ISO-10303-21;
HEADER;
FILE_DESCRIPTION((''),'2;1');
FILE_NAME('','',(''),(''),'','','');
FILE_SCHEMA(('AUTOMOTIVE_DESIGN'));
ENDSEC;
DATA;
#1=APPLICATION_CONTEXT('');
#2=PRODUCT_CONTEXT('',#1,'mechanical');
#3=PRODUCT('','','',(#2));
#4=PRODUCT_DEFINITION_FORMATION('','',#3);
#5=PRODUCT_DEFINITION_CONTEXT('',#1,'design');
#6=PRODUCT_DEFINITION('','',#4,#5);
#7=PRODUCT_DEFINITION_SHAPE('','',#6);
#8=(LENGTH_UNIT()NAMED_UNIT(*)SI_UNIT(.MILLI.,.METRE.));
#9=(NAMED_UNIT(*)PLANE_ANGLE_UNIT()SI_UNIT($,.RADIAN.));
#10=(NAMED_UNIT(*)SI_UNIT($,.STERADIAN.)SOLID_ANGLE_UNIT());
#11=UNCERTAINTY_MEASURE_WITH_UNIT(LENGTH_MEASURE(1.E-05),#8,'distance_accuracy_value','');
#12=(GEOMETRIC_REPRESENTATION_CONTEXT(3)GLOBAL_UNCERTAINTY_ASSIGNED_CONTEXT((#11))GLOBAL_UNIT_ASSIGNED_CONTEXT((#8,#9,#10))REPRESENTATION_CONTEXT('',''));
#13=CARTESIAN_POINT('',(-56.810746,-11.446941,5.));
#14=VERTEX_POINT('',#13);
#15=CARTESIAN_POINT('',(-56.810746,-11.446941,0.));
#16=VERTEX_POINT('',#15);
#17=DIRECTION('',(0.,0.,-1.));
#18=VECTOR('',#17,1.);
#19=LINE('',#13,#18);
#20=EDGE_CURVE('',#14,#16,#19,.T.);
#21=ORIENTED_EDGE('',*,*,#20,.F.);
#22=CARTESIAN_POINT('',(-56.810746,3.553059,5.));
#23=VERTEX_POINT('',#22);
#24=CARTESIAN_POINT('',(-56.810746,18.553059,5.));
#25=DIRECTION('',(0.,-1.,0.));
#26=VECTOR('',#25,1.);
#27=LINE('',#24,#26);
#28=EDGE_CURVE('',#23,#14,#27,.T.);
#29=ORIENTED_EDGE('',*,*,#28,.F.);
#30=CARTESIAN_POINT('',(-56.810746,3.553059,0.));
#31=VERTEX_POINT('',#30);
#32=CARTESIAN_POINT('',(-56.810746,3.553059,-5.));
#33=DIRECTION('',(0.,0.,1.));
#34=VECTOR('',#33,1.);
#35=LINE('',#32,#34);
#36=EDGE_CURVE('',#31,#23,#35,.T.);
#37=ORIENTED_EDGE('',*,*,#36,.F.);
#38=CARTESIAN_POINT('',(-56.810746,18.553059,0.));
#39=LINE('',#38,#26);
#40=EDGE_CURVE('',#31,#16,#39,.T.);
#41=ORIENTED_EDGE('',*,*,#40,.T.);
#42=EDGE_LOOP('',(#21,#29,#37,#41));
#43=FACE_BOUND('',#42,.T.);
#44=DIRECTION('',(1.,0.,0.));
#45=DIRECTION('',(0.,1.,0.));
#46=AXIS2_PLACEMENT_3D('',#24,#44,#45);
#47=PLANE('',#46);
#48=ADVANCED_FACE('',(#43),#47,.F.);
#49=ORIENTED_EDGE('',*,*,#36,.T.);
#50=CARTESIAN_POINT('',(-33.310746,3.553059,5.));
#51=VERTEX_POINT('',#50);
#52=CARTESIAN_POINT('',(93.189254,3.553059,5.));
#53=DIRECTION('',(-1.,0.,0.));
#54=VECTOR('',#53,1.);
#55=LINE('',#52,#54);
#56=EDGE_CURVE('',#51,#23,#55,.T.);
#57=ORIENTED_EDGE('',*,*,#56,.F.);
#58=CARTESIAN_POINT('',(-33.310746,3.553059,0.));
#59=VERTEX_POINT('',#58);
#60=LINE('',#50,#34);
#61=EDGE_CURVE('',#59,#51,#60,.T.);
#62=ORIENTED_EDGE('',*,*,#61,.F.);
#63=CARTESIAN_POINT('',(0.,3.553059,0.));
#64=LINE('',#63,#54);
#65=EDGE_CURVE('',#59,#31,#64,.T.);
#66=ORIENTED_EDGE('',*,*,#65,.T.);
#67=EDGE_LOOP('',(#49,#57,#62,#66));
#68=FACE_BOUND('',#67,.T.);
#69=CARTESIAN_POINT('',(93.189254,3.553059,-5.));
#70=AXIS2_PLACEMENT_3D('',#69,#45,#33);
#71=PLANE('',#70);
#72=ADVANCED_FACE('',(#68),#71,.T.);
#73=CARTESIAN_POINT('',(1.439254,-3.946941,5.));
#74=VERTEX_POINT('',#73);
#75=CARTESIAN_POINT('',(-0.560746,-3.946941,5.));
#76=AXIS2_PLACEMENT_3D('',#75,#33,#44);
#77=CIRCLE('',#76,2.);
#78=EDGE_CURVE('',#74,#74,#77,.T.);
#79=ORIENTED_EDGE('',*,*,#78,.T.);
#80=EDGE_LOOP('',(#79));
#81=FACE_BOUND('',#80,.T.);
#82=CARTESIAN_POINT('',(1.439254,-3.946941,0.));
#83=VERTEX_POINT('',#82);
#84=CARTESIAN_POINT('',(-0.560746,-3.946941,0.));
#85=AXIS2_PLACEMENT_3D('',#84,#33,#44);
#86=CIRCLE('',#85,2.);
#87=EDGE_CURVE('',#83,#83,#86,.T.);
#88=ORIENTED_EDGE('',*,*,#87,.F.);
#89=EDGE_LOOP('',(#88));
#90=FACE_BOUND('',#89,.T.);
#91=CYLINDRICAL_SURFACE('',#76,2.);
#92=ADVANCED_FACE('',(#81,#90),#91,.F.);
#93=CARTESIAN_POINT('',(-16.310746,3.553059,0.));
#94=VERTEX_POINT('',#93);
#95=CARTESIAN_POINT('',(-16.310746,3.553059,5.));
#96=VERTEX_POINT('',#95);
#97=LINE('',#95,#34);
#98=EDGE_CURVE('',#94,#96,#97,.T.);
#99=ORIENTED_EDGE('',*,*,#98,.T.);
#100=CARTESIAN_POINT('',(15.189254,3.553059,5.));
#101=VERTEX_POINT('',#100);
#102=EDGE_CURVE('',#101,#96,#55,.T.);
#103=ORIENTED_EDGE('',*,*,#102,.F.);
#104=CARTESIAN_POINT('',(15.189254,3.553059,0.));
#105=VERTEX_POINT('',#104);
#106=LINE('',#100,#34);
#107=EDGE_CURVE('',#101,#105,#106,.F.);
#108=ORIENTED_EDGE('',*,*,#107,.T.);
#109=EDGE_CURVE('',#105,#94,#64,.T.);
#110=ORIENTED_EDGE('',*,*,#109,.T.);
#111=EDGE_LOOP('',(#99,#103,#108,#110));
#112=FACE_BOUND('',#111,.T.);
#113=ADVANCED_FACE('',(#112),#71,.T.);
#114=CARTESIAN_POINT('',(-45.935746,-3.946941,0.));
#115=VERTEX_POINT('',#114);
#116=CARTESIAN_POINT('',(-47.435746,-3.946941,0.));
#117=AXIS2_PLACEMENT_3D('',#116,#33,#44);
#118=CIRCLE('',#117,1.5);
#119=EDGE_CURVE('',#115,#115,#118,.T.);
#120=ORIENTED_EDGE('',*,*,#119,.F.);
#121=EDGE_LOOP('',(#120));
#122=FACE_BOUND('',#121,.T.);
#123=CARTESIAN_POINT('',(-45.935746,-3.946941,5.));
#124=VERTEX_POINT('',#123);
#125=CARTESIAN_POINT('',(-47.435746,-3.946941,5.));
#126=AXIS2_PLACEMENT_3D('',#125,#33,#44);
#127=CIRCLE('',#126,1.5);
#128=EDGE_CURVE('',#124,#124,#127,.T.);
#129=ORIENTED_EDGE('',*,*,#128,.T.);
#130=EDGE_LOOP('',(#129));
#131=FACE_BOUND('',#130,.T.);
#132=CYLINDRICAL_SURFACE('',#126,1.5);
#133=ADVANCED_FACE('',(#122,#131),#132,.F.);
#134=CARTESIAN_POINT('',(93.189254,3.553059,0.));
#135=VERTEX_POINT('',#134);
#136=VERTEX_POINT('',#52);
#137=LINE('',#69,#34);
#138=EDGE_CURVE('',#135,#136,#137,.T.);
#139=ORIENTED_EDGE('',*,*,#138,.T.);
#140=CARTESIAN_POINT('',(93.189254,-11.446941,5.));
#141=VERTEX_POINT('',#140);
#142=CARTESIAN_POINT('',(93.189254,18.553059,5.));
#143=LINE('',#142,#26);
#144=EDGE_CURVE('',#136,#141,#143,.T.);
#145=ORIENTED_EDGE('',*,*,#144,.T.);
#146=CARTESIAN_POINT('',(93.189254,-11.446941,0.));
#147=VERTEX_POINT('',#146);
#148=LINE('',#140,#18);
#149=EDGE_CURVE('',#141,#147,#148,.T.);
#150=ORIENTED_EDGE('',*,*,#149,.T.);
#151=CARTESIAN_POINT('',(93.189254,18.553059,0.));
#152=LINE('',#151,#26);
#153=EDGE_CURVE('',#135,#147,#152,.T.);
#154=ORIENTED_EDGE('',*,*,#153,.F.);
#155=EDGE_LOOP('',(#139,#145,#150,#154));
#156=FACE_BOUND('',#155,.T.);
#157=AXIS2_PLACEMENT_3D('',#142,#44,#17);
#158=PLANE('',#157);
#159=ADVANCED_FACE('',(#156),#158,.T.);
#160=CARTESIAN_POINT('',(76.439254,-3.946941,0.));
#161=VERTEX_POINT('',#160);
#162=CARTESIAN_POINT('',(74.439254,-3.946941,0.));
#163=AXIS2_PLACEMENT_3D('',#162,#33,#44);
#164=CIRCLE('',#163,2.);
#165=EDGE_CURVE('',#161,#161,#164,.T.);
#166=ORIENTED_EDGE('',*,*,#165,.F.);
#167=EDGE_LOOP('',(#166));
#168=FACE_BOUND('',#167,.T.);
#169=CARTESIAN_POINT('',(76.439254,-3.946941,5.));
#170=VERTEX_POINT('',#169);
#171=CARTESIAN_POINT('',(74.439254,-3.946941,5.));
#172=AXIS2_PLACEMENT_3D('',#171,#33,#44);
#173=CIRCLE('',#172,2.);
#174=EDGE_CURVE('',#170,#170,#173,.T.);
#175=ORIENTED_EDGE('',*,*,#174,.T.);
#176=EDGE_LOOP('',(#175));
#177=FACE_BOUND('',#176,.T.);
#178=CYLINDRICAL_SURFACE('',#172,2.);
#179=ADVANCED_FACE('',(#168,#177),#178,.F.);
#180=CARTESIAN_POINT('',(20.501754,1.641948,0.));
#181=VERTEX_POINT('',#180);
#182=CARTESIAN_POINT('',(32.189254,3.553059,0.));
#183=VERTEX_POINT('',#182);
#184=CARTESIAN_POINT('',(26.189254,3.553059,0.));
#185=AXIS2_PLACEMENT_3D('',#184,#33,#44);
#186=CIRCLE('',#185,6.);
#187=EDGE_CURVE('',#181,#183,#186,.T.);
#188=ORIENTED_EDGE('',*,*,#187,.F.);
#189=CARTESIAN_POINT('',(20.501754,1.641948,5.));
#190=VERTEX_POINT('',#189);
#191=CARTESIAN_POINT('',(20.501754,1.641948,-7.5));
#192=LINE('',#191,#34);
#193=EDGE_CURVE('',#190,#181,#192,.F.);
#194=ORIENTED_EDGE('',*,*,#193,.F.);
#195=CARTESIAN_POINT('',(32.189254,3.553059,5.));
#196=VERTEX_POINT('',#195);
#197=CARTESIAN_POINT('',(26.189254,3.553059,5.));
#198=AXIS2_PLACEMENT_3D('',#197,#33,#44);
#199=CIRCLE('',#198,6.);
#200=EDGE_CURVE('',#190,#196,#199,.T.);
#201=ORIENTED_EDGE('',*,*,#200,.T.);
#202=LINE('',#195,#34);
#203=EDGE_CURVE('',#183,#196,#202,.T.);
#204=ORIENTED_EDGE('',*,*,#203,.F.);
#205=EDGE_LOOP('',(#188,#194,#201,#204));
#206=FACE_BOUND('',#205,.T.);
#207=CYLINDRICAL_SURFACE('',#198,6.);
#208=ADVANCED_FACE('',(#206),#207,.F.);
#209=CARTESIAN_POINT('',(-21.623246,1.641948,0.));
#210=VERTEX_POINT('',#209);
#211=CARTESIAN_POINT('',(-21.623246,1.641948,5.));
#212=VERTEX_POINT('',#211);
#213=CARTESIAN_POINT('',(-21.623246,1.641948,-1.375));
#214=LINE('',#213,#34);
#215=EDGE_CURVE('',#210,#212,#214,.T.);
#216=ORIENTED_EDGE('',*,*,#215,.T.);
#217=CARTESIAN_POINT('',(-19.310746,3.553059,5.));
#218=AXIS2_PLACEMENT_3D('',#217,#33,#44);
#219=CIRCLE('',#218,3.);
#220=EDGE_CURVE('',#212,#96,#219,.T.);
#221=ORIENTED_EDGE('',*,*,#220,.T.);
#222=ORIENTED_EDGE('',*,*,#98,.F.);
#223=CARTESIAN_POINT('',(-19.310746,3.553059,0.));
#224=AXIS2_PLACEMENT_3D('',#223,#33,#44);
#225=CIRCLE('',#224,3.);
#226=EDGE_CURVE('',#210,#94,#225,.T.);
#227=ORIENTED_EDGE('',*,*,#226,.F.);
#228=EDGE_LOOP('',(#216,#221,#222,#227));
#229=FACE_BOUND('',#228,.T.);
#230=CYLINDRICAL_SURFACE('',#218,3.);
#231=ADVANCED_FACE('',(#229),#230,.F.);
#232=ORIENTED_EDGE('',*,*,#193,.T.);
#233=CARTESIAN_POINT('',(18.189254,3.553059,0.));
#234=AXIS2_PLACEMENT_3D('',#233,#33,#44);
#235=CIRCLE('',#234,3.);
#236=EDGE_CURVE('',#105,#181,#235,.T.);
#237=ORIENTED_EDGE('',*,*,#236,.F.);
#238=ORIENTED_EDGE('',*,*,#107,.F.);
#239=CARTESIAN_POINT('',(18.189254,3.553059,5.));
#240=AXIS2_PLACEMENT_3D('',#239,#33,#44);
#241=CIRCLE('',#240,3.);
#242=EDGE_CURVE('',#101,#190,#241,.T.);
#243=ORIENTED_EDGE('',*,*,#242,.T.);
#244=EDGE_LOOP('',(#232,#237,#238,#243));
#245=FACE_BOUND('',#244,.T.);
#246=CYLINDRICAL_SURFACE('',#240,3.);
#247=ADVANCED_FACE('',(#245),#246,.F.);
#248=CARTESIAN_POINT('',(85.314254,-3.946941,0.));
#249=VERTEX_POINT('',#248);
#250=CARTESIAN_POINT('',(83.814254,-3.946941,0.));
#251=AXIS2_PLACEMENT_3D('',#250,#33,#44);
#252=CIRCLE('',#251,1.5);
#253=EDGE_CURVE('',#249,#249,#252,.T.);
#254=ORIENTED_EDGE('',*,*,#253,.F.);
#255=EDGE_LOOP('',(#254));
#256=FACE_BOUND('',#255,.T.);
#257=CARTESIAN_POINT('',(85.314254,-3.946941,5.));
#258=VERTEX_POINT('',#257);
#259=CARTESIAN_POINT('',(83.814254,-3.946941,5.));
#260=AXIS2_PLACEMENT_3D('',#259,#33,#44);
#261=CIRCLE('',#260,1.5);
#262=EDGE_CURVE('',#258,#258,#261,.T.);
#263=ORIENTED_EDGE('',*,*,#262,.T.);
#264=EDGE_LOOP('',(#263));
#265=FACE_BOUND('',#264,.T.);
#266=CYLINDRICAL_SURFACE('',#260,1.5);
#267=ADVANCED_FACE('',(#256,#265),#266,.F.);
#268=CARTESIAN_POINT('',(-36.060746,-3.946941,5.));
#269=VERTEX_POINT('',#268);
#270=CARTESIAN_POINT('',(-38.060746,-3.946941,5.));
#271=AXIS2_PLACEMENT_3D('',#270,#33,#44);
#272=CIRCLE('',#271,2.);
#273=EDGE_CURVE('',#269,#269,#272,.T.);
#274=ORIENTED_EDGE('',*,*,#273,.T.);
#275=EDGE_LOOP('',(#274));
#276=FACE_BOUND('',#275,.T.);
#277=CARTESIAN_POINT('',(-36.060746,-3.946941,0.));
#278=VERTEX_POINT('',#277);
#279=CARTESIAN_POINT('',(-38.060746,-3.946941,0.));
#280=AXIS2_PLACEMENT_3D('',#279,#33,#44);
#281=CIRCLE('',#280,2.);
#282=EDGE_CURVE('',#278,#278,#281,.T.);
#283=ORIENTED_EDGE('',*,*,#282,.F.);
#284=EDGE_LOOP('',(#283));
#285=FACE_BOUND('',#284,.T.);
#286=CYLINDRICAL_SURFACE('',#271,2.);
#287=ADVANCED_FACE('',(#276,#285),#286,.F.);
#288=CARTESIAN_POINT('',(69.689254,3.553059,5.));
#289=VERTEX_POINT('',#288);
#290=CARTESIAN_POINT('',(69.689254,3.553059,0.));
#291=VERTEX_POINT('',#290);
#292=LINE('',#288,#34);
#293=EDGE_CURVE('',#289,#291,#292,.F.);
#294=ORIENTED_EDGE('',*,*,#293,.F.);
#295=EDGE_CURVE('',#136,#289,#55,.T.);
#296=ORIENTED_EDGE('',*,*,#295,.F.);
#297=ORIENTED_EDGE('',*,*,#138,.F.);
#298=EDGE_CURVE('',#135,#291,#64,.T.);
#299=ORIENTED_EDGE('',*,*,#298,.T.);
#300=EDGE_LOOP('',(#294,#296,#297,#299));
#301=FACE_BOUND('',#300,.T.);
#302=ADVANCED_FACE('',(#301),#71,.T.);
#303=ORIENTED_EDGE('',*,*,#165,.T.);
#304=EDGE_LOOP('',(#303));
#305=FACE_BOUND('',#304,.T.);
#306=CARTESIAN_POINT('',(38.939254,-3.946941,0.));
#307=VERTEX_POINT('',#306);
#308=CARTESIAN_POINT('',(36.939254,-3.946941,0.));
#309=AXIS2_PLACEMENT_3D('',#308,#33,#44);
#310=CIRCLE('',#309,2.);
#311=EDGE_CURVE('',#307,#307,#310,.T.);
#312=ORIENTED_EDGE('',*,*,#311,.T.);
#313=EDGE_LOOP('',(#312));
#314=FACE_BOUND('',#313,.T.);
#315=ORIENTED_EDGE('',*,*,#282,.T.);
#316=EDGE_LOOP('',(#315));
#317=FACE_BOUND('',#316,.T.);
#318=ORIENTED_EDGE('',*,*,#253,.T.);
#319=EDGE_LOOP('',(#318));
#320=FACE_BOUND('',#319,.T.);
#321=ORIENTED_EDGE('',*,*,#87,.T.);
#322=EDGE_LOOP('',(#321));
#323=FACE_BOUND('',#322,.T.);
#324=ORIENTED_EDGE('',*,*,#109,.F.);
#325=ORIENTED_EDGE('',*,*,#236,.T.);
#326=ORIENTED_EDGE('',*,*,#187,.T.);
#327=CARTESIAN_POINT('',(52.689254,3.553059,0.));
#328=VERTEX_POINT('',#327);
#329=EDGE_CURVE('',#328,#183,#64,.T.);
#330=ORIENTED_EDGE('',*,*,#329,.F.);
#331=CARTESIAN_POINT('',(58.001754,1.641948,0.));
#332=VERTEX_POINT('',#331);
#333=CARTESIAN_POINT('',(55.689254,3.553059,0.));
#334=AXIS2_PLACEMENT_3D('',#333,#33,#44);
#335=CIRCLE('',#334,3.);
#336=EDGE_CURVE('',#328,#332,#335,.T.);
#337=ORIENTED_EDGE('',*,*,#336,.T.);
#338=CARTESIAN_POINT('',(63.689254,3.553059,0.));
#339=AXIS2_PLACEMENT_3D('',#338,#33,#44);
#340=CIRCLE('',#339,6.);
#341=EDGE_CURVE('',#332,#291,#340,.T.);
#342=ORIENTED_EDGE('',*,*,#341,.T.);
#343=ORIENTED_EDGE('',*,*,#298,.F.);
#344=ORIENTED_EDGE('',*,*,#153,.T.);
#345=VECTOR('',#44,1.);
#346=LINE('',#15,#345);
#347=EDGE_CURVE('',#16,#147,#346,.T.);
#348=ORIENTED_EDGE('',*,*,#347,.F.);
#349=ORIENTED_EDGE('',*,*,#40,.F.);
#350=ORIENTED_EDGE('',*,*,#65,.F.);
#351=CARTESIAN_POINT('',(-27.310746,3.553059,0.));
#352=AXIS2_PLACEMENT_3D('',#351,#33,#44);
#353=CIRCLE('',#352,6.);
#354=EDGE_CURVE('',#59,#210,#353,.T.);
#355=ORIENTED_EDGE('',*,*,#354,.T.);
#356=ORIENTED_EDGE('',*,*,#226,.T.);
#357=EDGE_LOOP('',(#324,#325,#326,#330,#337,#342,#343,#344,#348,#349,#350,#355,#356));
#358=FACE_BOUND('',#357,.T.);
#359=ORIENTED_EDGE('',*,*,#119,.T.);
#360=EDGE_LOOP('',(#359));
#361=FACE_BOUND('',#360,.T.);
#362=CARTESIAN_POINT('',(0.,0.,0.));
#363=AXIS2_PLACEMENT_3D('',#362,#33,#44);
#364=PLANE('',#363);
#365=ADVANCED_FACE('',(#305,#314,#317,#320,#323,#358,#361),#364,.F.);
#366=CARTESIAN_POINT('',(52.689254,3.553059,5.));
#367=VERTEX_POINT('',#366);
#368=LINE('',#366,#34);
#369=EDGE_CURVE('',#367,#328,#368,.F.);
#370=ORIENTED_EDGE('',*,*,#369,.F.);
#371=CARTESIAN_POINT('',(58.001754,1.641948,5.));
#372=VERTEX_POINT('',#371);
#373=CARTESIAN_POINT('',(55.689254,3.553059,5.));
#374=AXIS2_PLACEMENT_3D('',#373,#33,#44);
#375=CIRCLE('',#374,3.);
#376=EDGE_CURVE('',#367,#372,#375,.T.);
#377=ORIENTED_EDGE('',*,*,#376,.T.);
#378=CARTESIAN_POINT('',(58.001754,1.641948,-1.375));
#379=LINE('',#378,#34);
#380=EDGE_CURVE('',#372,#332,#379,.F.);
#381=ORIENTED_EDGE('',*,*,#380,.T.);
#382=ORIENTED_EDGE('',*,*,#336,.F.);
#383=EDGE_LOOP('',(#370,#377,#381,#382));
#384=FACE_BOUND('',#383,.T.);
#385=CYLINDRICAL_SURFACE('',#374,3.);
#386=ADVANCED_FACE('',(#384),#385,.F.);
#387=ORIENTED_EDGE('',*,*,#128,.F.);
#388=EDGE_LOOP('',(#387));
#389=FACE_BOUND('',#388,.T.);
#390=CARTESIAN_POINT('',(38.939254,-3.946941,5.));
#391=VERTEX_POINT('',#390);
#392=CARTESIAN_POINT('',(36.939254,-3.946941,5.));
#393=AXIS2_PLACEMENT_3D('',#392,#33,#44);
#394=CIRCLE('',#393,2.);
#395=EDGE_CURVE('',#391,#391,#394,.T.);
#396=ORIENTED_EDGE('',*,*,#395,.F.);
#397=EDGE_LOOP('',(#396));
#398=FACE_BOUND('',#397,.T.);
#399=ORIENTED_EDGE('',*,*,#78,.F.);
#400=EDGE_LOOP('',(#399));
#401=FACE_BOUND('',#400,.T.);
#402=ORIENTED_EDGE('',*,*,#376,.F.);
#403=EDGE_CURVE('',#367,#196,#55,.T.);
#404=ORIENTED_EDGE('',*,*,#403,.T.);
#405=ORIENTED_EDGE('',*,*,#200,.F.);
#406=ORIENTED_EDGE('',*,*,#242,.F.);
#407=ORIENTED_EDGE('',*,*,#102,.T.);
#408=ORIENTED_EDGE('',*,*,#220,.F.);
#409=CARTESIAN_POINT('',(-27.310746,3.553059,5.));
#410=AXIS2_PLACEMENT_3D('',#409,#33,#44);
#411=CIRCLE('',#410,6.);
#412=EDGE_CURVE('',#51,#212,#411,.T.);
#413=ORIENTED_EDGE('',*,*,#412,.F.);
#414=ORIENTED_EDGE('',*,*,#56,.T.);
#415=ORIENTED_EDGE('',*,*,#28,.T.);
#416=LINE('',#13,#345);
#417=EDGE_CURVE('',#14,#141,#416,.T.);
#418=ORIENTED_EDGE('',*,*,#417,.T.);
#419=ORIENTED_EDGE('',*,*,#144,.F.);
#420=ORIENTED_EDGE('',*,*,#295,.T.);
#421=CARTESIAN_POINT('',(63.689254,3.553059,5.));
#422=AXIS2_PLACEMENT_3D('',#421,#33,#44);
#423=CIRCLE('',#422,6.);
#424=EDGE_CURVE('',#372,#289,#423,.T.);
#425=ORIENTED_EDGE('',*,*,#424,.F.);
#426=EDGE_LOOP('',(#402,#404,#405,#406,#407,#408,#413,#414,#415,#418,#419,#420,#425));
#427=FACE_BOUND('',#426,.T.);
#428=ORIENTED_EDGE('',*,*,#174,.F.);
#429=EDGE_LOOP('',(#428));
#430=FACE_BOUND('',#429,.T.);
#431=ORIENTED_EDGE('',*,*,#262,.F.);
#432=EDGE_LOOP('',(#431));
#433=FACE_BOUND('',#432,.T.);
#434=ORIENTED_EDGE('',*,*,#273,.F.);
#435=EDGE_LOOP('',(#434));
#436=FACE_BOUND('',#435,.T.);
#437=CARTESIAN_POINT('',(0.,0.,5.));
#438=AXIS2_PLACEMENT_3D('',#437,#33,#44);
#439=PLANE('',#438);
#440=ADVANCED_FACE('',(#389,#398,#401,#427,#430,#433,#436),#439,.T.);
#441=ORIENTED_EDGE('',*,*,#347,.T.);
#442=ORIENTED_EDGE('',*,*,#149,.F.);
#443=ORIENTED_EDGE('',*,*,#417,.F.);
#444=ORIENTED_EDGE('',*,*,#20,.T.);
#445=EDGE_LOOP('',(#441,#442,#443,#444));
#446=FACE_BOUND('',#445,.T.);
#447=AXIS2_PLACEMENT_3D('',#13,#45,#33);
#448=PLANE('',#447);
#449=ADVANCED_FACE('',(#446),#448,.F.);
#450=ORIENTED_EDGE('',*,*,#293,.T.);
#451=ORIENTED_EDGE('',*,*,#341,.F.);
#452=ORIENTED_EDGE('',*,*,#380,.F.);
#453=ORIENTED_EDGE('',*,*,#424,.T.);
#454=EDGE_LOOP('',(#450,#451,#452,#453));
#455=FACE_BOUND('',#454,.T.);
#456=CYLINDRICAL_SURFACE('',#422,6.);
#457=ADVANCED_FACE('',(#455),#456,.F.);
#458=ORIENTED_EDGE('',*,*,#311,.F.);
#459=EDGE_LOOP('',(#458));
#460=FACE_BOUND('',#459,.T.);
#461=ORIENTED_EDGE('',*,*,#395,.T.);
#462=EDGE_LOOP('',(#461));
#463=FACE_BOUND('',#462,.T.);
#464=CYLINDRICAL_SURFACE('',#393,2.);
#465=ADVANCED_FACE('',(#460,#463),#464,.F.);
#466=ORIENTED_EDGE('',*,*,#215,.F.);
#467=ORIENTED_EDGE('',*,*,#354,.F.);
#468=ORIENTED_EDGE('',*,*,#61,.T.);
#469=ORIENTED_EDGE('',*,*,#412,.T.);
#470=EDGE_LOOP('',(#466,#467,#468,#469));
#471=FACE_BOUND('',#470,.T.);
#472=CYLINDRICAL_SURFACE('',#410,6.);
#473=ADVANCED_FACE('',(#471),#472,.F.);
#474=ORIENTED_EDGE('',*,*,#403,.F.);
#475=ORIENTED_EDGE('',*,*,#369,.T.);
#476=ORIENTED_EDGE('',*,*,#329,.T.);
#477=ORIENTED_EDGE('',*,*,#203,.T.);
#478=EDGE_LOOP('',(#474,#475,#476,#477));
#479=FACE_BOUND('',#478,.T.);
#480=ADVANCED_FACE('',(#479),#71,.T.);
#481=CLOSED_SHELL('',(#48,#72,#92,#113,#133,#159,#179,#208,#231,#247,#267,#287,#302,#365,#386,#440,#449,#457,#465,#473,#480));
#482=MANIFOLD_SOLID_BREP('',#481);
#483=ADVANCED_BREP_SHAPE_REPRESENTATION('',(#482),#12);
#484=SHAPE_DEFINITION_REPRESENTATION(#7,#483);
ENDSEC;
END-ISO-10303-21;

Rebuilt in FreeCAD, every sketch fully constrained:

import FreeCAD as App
import Part
import Sketcher
Q = App.Units.Quantity

doc = App.newDocument("Part")
body = doc.addObject("PartDesign::Body", "Body")

# Sketch on XY plane
sketch1 = doc.addObject("Sketcher::SketchObject", "Sketch")
body.addObject(sketch1)
sketch1.AttachmentSupport = (doc.XY_Plane, [""])
sketch1.MapMode = "FlatFace"
sketch1.addGeometry(Part.LineSegment(App.Vector(-56.810746, 18.553059, 0), App.Vector(-56.810746, -11.446941, 0)), False)
sketch1.addGeometry(Part.LineSegment(App.Vector(-56.810746, -11.446941, 0), App.Vector(93.189254, -11.446941, 0)), False)
sketch1.addGeometry(Part.LineSegment(App.Vector(93.189254, -11.446941, 0), App.Vector(93.189254, 18.553059, 0)), False)
sketch1.addGeometry(Part.LineSegment(App.Vector(93.189254, 18.553059, 0), App.Vector(-56.810746, 18.553059, 0)), False)
sketch1.addConstraint(Sketcher.Constraint("Coincident", 0, 2, 1, 1))
sketch1.addConstraint(Sketcher.Constraint("Coincident", 1, 2, 2, 1))
sketch1.addConstraint(Sketcher.Constraint("Coincident", 2, 2, 3, 1))
sketch1.addConstraint(Sketcher.Constraint("Coincident", 3, 2, 0, 1))
sketch1.addConstraint(Sketcher.Constraint("Vertical", 0))
sketch1.addConstraint(Sketcher.Constraint("Horizontal", 1))
sketch1.addConstraint(Sketcher.Constraint("Vertical", 2))
sketch1.addConstraint(Sketcher.Constraint("Horizontal", 3))
sketch1.addConstraint(Sketcher.Constraint("DistanceX", 1, 1, 1, 2, Q("150 mm")))
sketch1.addConstraint(Sketcher.Constraint("DistanceY", 0, 2, 0, 1, Q("30 mm")))
sketch1.addConstraint(Sketcher.Constraint("DistanceY", 0, 2, -1, 1, Q("11.446941 mm")))
sketch1.addConstraint(Sketcher.Constraint("DistanceX", 0, 2, -1, 1, Q("56.810746 mm")))
pad1 = doc.addObject("PartDesign::Pad", "Pad")
body.addObject(pad1)
pad1.Profile = sketch1
pad1.Length = 5

# Sketch on YZ plane
sketch2 = doc.addObject("Sketcher::SketchObject", "Sketch001")
body.addObject(sketch2)
sketch2.AttachmentSupport = (doc.YZ_Plane, [""])
sketch2.MapMode = "FlatFace"
sketch2.AttachmentOffset = App.Placement(App.Vector(0, 0, 55.689254), App.Rotation())
sketch2.addGeometry(Part.LineSegment(App.Vector(3.553059, -21.802582, 0), App.Vector(3.553059, 5, 0)), False)
sketch2.addGeometry(Part.LineSegment(App.Vector(3.553059, 5, 0), App.Vector(0.553059, 5, 0)), False)
sketch2.addGeometry(Part.LineSegment(App.Vector(0.553059, 5, 0), App.Vector(0.553059, -20, 0)), False)
sketch2.addGeometry(Part.LineSegment(App.Vector(0.553059, -20, 0), App.Vector(3.553059, -21.802582, 0)), False)
sketch2.addGeometry(Part.LineSegment(App.Vector(3.553059, 5, 0), App.Vector(3.553059, -21.802582, 0)), True)  # axis
sketch2.addConstraint(Sketcher.Constraint("Coincident", 0, 2, 1, 1))
sketch2.addConstraint(Sketcher.Constraint("Coincident", 1, 2, 2, 1))
sketch2.addConstraint(Sketcher.Constraint("Coincident", 2, 2, 3, 1))
sketch2.addConstraint(Sketcher.Constraint("Coincident", 3, 2, 0, 1))
sketch2.addConstraint(Sketcher.Constraint("Vertical", 0))
sketch2.addConstraint(Sketcher.Constraint("Horizontal", 1))
sketch2.addConstraint(Sketcher.Constraint("Vertical", 2))
sketch2.addConstraint(Sketcher.Constraint("Vertical", 4))
sketch2.addConstraint(Sketcher.Constraint("Coincident", 4, 1, 0, 2))
sketch2.addConstraint(Sketcher.Constraint("Equal", 0, 4))
sketch2.addConstraint(Sketcher.Constraint("DistanceX", 1, 2, 1, 1, Q("3 mm")))
sketch2.addConstraint(Sketcher.Constraint("DistanceY", 2, 2, 2, 1, Q("25 mm")))
sketch2.addConstraint(Sketcher.Constraint("Angle", 3, Q("-31 deg")))
sketch2.addConstraint(Sketcher.Constraint("DistanceY", -1, 1, 0, 2, Q("5 mm")))
sketch2.addConstraint(Sketcher.Constraint("DistanceX", -1, 1, 0, 2, Q("3.553059 mm")))
groove = doc.addObject("PartDesign::Groove", "Groove")
body.addObject(groove)
groove.Profile = sketch2
groove.ReferenceAxis = (sketch2, ["Axis0"])
groove.Angle = 360
doc.recompute()

linearpattern = doc.addObject("PartDesign::LinearPattern", "LinearPattern")
body.addObject(linearpattern)
linearpattern.Originals = [groove]
linearpattern.Direction = (doc.X_Axis, [""])
linearpattern.Mode = "offset"
linearpattern.Offset = 37.5
linearpattern.Occurrences = 2
linearpattern.Reversed = True
body.Tip = linearpattern
doc.recompute()

datumplane = doc.addObject("PartDesign::Plane", "DatumPlane")
body.addObject(datumplane)
datumplane.AttachmentSupport = (doc.YZ_Plane, [""])
datumplane.MapMode = "FlatFace"
datumplane.AttachmentOffset = App.Placement(App.Vector(0, 0, 18.189254), App.Rotation())
mirrored = doc.addObject("PartDesign::Mirrored", "Mirrored")
body.addObject(mirrored)
mirrored.Originals = [groove]
mirrored.MirrorPlane = (datumplane, [""])
body.Tip = mirrored

# Sketch on YZ plane
sketch3 = doc.addObject("Sketcher::SketchObject", "Sketch002")
body.addObject(sketch3)
sketch3.AttachmentSupport = (doc.YZ_Plane, [""])
sketch3.MapMode = "FlatFace"
sketch3.AttachmentOffset = App.Placement(App.Vector(0, 0, 18.189254), App.Rotation())
sketch3.addGeometry(Part.LineSegment(App.Vector(3.553059, 5, 0), App.Vector(3.553059, -21.802582, 0)), False)
sketch3.addGeometry(Part.LineSegment(App.Vector(3.553059, -21.802582, 0), App.Vector(0.553059, -20, 0)), False)
sketch3.addGeometry(Part.LineSegment(App.Vector(0.553059, -20, 0), App.Vector(0.553059, 5, 0)), False)
sketch3.addGeometry(Part.LineSegment(App.Vector(0.553059, 5, 0), App.Vector(3.553059, 5, 0)), False)
sketch3.addGeometry(Part.LineSegment(App.Vector(3.553059, -21.802582, 0), App.Vector(3.553059, 5, 0)), True)  # axis
sketch3.addConstraint(Sketcher.Constraint("Coincident", 0, 2, 1, 1))
sketch3.addConstraint(Sketcher.Constraint("Coincident", 1, 2, 2, 1))
sketch3.addConstraint(Sketcher.Constraint("Coincident", 2, 2, 3, 1))
sketch3.addConstraint(Sketcher.Constraint("Coincident", 3, 2, 0, 1))
sketch3.addConstraint(Sketcher.Constraint("Vertical", 0))
sketch3.addConstraint(Sketcher.Constraint("Vertical", 2))
sketch3.addConstraint(Sketcher.Constraint("Horizontal", 3))
sketch3.addConstraint(Sketcher.Constraint("Vertical", 4))
sketch3.addConstraint(Sketcher.Constraint("Coincident", 4, 1, 0, 2))
sketch3.addConstraint(Sketcher.Constraint("Horizontal", 2, 2, 4, 2))
sketch3.addConstraint(Sketcher.Constraint("DistanceX", 3, 1, 3, 2, Q("3 mm")))
sketch3.addConstraint(Sketcher.Constraint("DistanceY", 2, 1, 2, 2, Q("25 mm")))
sketch3.addConstraint(Sketcher.Constraint("Angle", 1, Q("149 deg")))
sketch3.addConstraint(Sketcher.Constraint("DistanceY", 1, 2, -1, 1, Q("20 mm")))
sketch3.addConstraint(Sketcher.Constraint("DistanceX", -1, 1, 0, 2, Q("3.553059 mm")))
groove2 = doc.addObject("PartDesign::Groove", "Groove001")
body.addObject(groove2)
groove2.Profile = sketch3
groove2.ReferenceAxis = (sketch3, ["Axis0"])
groove2.Angle = 360

# Sketch on YZ plane
sketch4 = doc.addObject("Sketcher::SketchObject", "Sketch003")
body.addObject(sketch4)
sketch4.AttachmentSupport = (doc.YZ_Plane, [""])
sketch4.MapMode = "FlatFace"
sketch4.AttachmentOffset = App.Placement(App.Vector(0, 0, 74.439254), App.Rotation())
sketch4.addGeometry(Part.LineSegment(App.Vector(11.053059, -21.201721, 0), App.Vector(11.053059, 5, 0)), False)
sketch4.addGeometry(Part.LineSegment(App.Vector(11.053059, 5, 0), App.Vector(9.053059, 5, 0)), False)
sketch4.addGeometry(Part.LineSegment(App.Vector(9.053059, 5, 0), App.Vector(9.053059, -20, 0)), False)
sketch4.addGeometry(Part.LineSegment(App.Vector(9.053059, -20, 0), App.Vector(11.053059, -21.201721, 0)), False)
sketch4.addGeometry(Part.LineSegment(App.Vector(11.053059, 5, 0), App.Vector(11.053059, -21.201721, 0)), True)  # axis
sketch4.addConstraint(Sketcher.Constraint("Coincident", 0, 2, 1, 1))
sketch4.addConstraint(Sketcher.Constraint("Coincident", 1, 2, 2, 1))
sketch4.addConstraint(Sketcher.Constraint("Coincident", 2, 2, 3, 1))
sketch4.addConstraint(Sketcher.Constraint("Coincident", 3, 2, 0, 1))
sketch4.addConstraint(Sketcher.Constraint("Vertical", 0))
sketch4.addConstraint(Sketcher.Constraint("Horizontal", 1))
sketch4.addConstraint(Sketcher.Constraint("Vertical", 2))
sketch4.addConstraint(Sketcher.Constraint("Vertical", 4))
sketch4.addConstraint(Sketcher.Constraint("Coincident", 4, 1, 0, 2))
sketch4.addConstraint(Sketcher.Constraint("Equal", 0, 4))
sketch4.addConstraint(Sketcher.Constraint("DistanceX", 1, 2, 1, 1, Q("2 mm")))
sketch4.addConstraint(Sketcher.Constraint("DistanceY", 2, 2, 2, 1, Q("25 mm")))
sketch4.addConstraint(Sketcher.Constraint("Angle", 3, Q("-31 deg")))
sketch4.addConstraint(Sketcher.Constraint("DistanceY", -1, 1, 0, 2, Q("5 mm")))
sketch4.addConstraint(Sketcher.Constraint("DistanceX", -1, 1, 0, 2, Q("11.053059 mm")))
groove3 = doc.addObject("PartDesign::Groove", "Groove002")
body.addObject(groove3)
groove3.Profile = sketch4
groove3.ReferenceAxis = (sketch4, ["Axis0"])
groove3.Angle = 360
doc.recompute()

linearpattern2 = doc.addObject("PartDesign::LinearPattern", "LinearPattern001")
body.addObject(linearpattern2)
linearpattern2.Originals = [groove3]
linearpattern2.Direction = (doc.X_Axis, [""])
linearpattern2.Mode = "offset"
linearpattern2.Offset = 37.5
linearpattern2.Occurrences = 2
linearpattern2.Reversed = True
body.Tip = linearpattern2
doc.recompute()

datumplane2 = doc.addObject("PartDesign::Plane", "DatumPlane001")
body.addObject(datumplane2)
datumplane2.AttachmentSupport = (doc.XZ_Plane, [""])
datumplane2.MapMode = "FlatFace"
datumplane2.AttachmentOffset = App.Placement(App.Vector(0, 0, -3.553059), App.Rotation())
mirrored2 = doc.addObject("PartDesign::Mirrored", "Mirrored001")
body.addObject(mirrored2)
mirrored2.Originals = [groove3]
mirrored2.MirrorPlane = (datumplane2, [""])
body.Tip = mirrored2

# Sketch on YZ plane
sketch5 = doc.addObject("Sketcher::SketchObject", "Sketch004")
body.addObject(sketch5)
sketch5.AttachmentSupport = (doc.YZ_Plane, [""])
sketch5.MapMode = "FlatFace"
sketch5.AttachmentOffset = App.Placement(App.Vector(0, 0, 36.939254), App.Rotation())
sketch5.addGeometry(Part.LineSegment(App.Vector(-3.946941, 5, 0), App.Vector(-3.946941, -21.201721, 0)), False)
sketch5.addGeometry(Part.LineSegment(App.Vector(-3.946941, -21.201721, 0), App.Vector(-1.946941, -20, 0)), False)
sketch5.addGeometry(Part.LineSegment(App.Vector(-1.946941, -20, 0), App.Vector(-1.946941, 5, 0)), False)
sketch5.addGeometry(Part.LineSegment(App.Vector(-1.946941, 5, 0), App.Vector(-3.946941, 5, 0)), False)
sketch5.addGeometry(Part.LineSegment(App.Vector(-3.946941, -21.201721, 0), App.Vector(-3.946941, 5, 0)), True)  # axis
sketch5.addConstraint(Sketcher.Constraint("Coincident", 0, 2, 1, 1))
sketch5.addConstraint(Sketcher.Constraint("Coincident", 1, 2, 2, 1))
sketch5.addConstraint(Sketcher.Constraint("Coincident", 2, 2, 3, 1))
sketch5.addConstraint(Sketcher.Constraint("Coincident", 3, 2, 0, 1))
sketch5.addConstraint(Sketcher.Constraint("Vertical", 0))
sketch5.addConstraint(Sketcher.Constraint("Vertical", 2))
sketch5.addConstraint(Sketcher.Constraint("Horizontal", 3))
sketch5.addConstraint(Sketcher.Constraint("Vertical", 4))
sketch5.addConstraint(Sketcher.Constraint("Coincident", 4, 1, 0, 2))
sketch5.addConstraint(Sketcher.Constraint("Horizontal", 2, 2, 4, 2))
sketch5.addConstraint(Sketcher.Constraint("DistanceX", 3, 2, 3, 1, Q("2 mm")))
sketch5.addConstraint(Sketcher.Constraint("DistanceY", 2, 1, 2, 2, Q("25 mm")))
sketch5.addConstraint(Sketcher.Constraint("Angle", 1, Q("31 deg")))
sketch5.addConstraint(Sketcher.Constraint("DistanceY", 1, 2, -1, 1, Q("20 mm")))
sketch5.addConstraint(Sketcher.Constraint("DistanceX", 0, 2, -1, 1, Q("3.946941 mm")))
groove4 = doc.addObject("PartDesign::Groove", "Groove003")
body.addObject(groove4)
groove4.Profile = sketch5
groove4.ReferenceAxis = (sketch5, ["Axis0"])
groove4.Angle = 360
doc.recompute()

datumplane3 = doc.addObject("PartDesign::Plane", "DatumPlane002")
body.addObject(datumplane3)
datumplane3.AttachmentSupport = (doc.YZ_Plane, [""])
datumplane3.MapMode = "FlatFace"
datumplane3.AttachmentOffset = App.Placement(App.Vector(0, 0, 18.189254), App.Rotation())
mirrored3 = doc.addObject("PartDesign::Mirrored", "Mirrored002")
body.addObject(mirrored3)
mirrored3.Originals = [groove3]
mirrored3.MirrorPlane = (datumplane3, [""])
body.Tip = mirrored3

# Sketch on YZ plane
sketch6 = doc.addObject("Sketcher::SketchObject", "Sketch005")
body.addObject(sketch6)
sketch6.AttachmentSupport = (doc.YZ_Plane, [""])
sketch6.MapMode = "FlatFace"
sketch6.AttachmentOffset = App.Placement(App.Vector(0, 0, -38.060746), App.Rotation())
sketch6.addGeometry(Part.LineSegment(App.Vector(-3.946941, -21.201721, 0), App.Vector(-3.946941, 5, 0)), False)
sketch6.addGeometry(Part.LineSegment(App.Vector(-3.946941, 5, 0), App.Vector(-1.946941, 5, 0)), False)
sketch6.addGeometry(Part.LineSegment(App.Vector(-1.946941, 5, 0), App.Vector(-1.946941, -20, 0)), False)
sketch6.addGeometry(Part.LineSegment(App.Vector(-1.946941, -20, 0), App.Vector(-3.946941, -21.201721, 0)), False)
sketch6.addGeometry(Part.LineSegment(App.Vector(-3.946941, 5, 0), App.Vector(-3.946941, -21.201721, 0)), True)  # axis
sketch6.addConstraint(Sketcher.Constraint("Coincident", 0, 2, 1, 1))
sketch6.addConstraint(Sketcher.Constraint("Coincident", 1, 2, 2, 1))
sketch6.addConstraint(Sketcher.Constraint("Coincident", 2, 2, 3, 1))
sketch6.addConstraint(Sketcher.Constraint("Coincident", 3, 2, 0, 1))
sketch6.addConstraint(Sketcher.Constraint("Vertical", 0))
sketch6.addConstraint(Sketcher.Constraint("Horizontal", 1))
sketch6.addConstraint(Sketcher.Constraint("Vertical", 2))
sketch6.addConstraint(Sketcher.Constraint("Vertical", 4))
sketch6.addConstraint(Sketcher.Constraint("Coincident", 4, 1, 0, 2))
sketch6.addConstraint(Sketcher.Constraint("Equal", 0, 4))
sketch6.addConstraint(Sketcher.Constraint("DistanceX", 1, 1, 1, 2, Q("2 mm")))
sketch6.addConstraint(Sketcher.Constraint("DistanceY", 2, 2, 2, 1, Q("25 mm")))
sketch6.addConstraint(Sketcher.Constraint("Angle", 3, Q("-149 deg")))
sketch6.addConstraint(Sketcher.Constraint("DistanceY", -1, 1, 0, 2, Q("5 mm")))
sketch6.addConstraint(Sketcher.Constraint("DistanceX", 0, 2, -1, 1, Q("3.946941 mm")))
groove5 = doc.addObject("PartDesign::Groove", "Groove004")
body.addObject(groove5)
groove5.Profile = sketch6
groove5.ReferenceAxis = (sketch6, ["Axis0"])
groove5.Angle = 360

# Sketch on YZ plane
sketch7 = doc.addObject("Sketcher::SketchObject", "Sketch006")
body.addObject(sketch7)
sketch7.AttachmentSupport = (doc.YZ_Plane, [""])
sketch7.MapMode = "FlatFace"
sketch7.AttachmentOffset = App.Placement(App.Vector(0, 0, -0.560746), App.Rotation())
sketch7.addGeometry(Part.LineSegment(App.Vector(-3.946941, -21.201721, 0), App.Vector(-3.946941, 5, 0)), False)
sketch7.addGeometry(Part.LineSegment(App.Vector(-3.946941, 5, 0), App.Vector(-1.946941, 5, 0)), False)
sketch7.addGeometry(Part.LineSegment(App.Vector(-1.946941, 5, 0), App.Vector(-1.946941, -20, 0)), False)
sketch7.addGeometry(Part.LineSegment(App.Vector(-1.946941, -20, 0), App.Vector(-3.946941, -21.201721, 0)), False)
sketch7.addGeometry(Part.LineSegment(App.Vector(-3.946941, 5, 0), App.Vector(-3.946941, -21.201721, 0)), True)  # axis
sketch7.addConstraint(Sketcher.Constraint("Coincident", 0, 2, 1, 1))
sketch7.addConstraint(Sketcher.Constraint("Coincident", 1, 2, 2, 1))
sketch7.addConstraint(Sketcher.Constraint("Coincident", 2, 2, 3, 1))
sketch7.addConstraint(Sketcher.Constraint("Coincident", 3, 2, 0, 1))
sketch7.addConstraint(Sketcher.Constraint("Vertical", 0))
sketch7.addConstraint(Sketcher.Constraint("Horizontal", 1))
sketch7.addConstraint(Sketcher.Constraint("Vertical", 2))
sketch7.addConstraint(Sketcher.Constraint("Vertical", 4))
sketch7.addConstraint(Sketcher.Constraint("Coincident", 4, 1, 0, 2))
sketch7.addConstraint(Sketcher.Constraint("Equal", 0, 4))
sketch7.addConstraint(Sketcher.Constraint("DistanceX", 1, 1, 1, 2, Q("2 mm")))
sketch7.addConstraint(Sketcher.Constraint("DistanceY", 2, 2, 2, 1, Q("25 mm")))
sketch7.addConstraint(Sketcher.Constraint("Angle", 3, Q("-149 deg")))
sketch7.addConstraint(Sketcher.Constraint("DistanceY", -1, 1, 0, 2, Q("5 mm")))
sketch7.addConstraint(Sketcher.Constraint("DistanceX", 0, 2, -1, 1, Q("3.946941 mm")))
groove6 = doc.addObject("PartDesign::Groove", "Groove005")
body.addObject(groove6)
groove6.Profile = sketch7
groove6.ReferenceAxis = (sketch7, ["Axis0"])
groove6.Angle = 360

# Sketch on YZ plane
sketch8 = doc.addObject("Sketcher::SketchObject", "Sketch007")
body.addObject(sketch8)
sketch8.AttachmentSupport = (doc.YZ_Plane, [""])
sketch8.MapMode = "FlatFace"
sketch8.AttachmentOffset = App.Placement(App.Vector(0, 0, -0.560746), App.Rotation())
sketch8.addGeometry(Part.LineSegment(App.Vector(11.053059, 5, 0), App.Vector(11.053059, -21.201721, 0)), False)
sketch8.addGeometry(Part.LineSegment(App.Vector(11.053059, -21.201721, 0), App.Vector(9.053059, -20, 0)), False)
sketch8.addGeometry(Part.LineSegment(App.Vector(9.053059, -20, 0), App.Vector(9.053059, 5, 0)), False)
sketch8.addGeometry(Part.LineSegment(App.Vector(9.053059, 5, 0), App.Vector(11.053059, 5, 0)), False)
sketch8.addGeometry(Part.LineSegment(App.Vector(11.053059, -21.201721, 0), App.Vector(11.053059, 5, 0)), True)  # axis
sketch8.addConstraint(Sketcher.Constraint("Coincident", 0, 2, 1, 1))
sketch8.addConstraint(Sketcher.Constraint("Coincident", 1, 2, 2, 1))
sketch8.addConstraint(Sketcher.Constraint("Coincident", 2, 2, 3, 1))
sketch8.addConstraint(Sketcher.Constraint("Coincident", 3, 2, 0, 1))
sketch8.addConstraint(Sketcher.Constraint("Vertical", 0))
sketch8.addConstraint(Sketcher.Constraint("Vertical", 2))
sketch8.addConstraint(Sketcher.Constraint("Horizontal", 3))
sketch8.addConstraint(Sketcher.Constraint("Vertical", 4))
sketch8.addConstraint(Sketcher.Constraint("Coincident", 4, 1, 0, 2))
sketch8.addConstraint(Sketcher.Constraint("Horizontal", 2, 2, 4, 2))
sketch8.addConstraint(Sketcher.Constraint("DistanceX", 3, 1, 3, 2, Q("2 mm")))
sketch8.addConstraint(Sketcher.Constraint("DistanceY", 2, 1, 2, 2, Q("25 mm")))
sketch8.addConstraint(Sketcher.Constraint("Angle", 1, Q("149 deg")))
sketch8.addConstraint(Sketcher.Constraint("DistanceY", 1, 2, -1, 1, Q("20 mm")))
sketch8.addConstraint(Sketcher.Constraint("DistanceX", -1, 1, 0, 2, Q("11.053059 mm")))
groove7 = doc.addObject("PartDesign::Groove", "Groove006")
body.addObject(groove7)
groove7.Profile = sketch8
groove7.ReferenceAxis = (sketch8, ["Axis0"])
groove7.Angle = 360

# Sketch on YZ plane
sketch9 = doc.addObject("Sketcher::SketchObject", "Sketch008")
body.addObject(sketch9)
sketch9.AttachmentSupport = (doc.YZ_Plane, [""])
sketch9.MapMode = "FlatFace"
sketch9.AttachmentOffset = App.Placement(App.Vector(0, 0, -47.435746), App.Rotation())
sketch9.addGeometry(Part.LineSegment(App.Vector(-3.946941, -20.901291, 0), App.Vector(-3.946941, 5, 0)), False)
sketch9.addGeometry(Part.LineSegment(App.Vector(-3.946941, 5, 0), App.Vector(-5.446941, 5, 0)), False)
sketch9.addGeometry(Part.LineSegment(App.Vector(-5.446941, 5, 0), App.Vector(-5.446941, -20, 0)), False)
sketch9.addGeometry(Part.LineSegment(App.Vector(-5.446941, -20, 0), App.Vector(-3.946941, -20.901291, 0)), False)
sketch9.addGeometry(Part.LineSegment(App.Vector(-3.946941, 5, 0), App.Vector(-3.946941, -20.901291, 0)), True)  # axis
sketch9.addConstraint(Sketcher.Constraint("Coincident", 0, 2, 1, 1))
sketch9.addConstraint(Sketcher.Constraint("Coincident", 1, 2, 2, 1))
sketch9.addConstraint(Sketcher.Constraint("Coincident", 2, 2, 3, 1))
sketch9.addConstraint(Sketcher.Constraint("Coincident", 3, 2, 0, 1))
sketch9.addConstraint(Sketcher.Constraint("Vertical", 0))
sketch9.addConstraint(Sketcher.Constraint("Horizontal", 1))
sketch9.addConstraint(Sketcher.Constraint("Vertical", 2))
sketch9.addConstraint(Sketcher.Constraint("Vertical", 4))
sketch9.addConstraint(Sketcher.Constraint("Coincident", 4, 1, 0, 2))
sketch9.addConstraint(Sketcher.Constraint("Equal", 0, 4))
sketch9.addConstraint(Sketcher.Constraint("DistanceY", 2, 2, 2, 1, Q("25 mm")))
sketch9.addConstraint(Sketcher.Constraint("Angle", 3, Q("-31 deg")))
sketch9.addConstraint(Sketcher.Constraint("DistanceX", 1, 2, 1, 1, Q("1.5 mm")))
sketch9.addConstraint(Sketcher.Constraint("DistanceY", -1, 1, 0, 2, Q("5 mm")))
sketch9.addConstraint(Sketcher.Constraint("DistanceX", 0, 2, -1, 1, Q("3.946941 mm")))
groove8 = doc.addObject("PartDesign::Groove", "Groove007")
body.addObject(groove8)
groove8.Profile = sketch9
groove8.ReferenceAxis = (sketch9, ["Axis0"])
groove8.Angle = 360
doc.recompute()

datumplane4 = doc.addObject("PartDesign::Plane", "DatumPlane003")
body.addObject(datumplane4)
datumplane4.AttachmentSupport = (doc.YZ_Plane, [""])
datumplane4.MapMode = "FlatFace"
datumplane4.AttachmentOffset = App.Placement(App.Vector(0, 0, 18.189254), App.Rotation())
mirrored4 = doc.addObject("PartDesign::Mirrored", "Mirrored003")
body.addObject(mirrored4)
mirrored4.Originals = [groove8]
mirrored4.MirrorPlane = (datumplane4, [""])
body.Tip = mirrored4

# Sketch on XY plane
sketch10 = doc.addObject("Sketcher::SketchObject", "Sketch009")
body.addObject(sketch10)
sketch10.AttachmentSupport = (doc.XY_Plane, [""])
sketch10.MapMode = "FlatFace"
sketch10.AttachmentOffset = App.Placement(App.Vector(0, 0, 5), App.Rotation())
sketch10.addGeometry(Part.Circle(App.Vector(26.189254, 3.553059, 0), App.Vector(0, 0, 1), 6), False)
sketch10.addConstraint(Sketcher.Constraint("Diameter", 0, Q("12 mm")))
sketch10.addConstraint(Sketcher.Constraint("DistanceY", -1, 1, 0, 3, Q("3.553059 mm")))
sketch10.addConstraint(Sketcher.Constraint("DistanceX", -1, 1, 0, 3, Q("26.189254 mm")))
doc.recompute()
hole = doc.addObject("PartDesign::Hole", "Hole")
body.addObject(hole)
hole.Profile = sketch10
hole.ThreadType = "None"
hole.Diameter = 12
hole.DepthType = "Dimension"
hole.Depth = 25
hole.DrillPoint = "Angled"
hole.DrillPointAngle = 118

# Sketch on XY plane
sketch11 = doc.addObject("Sketcher::SketchObject", "Sketch010")
body.addObject(sketch11)
sketch11.AttachmentSupport = (doc.XY_Plane, [""])
sketch11.MapMode = "FlatFace"
sketch11.AttachmentOffset = App.Placement(App.Vector(0, 0, 5), App.Rotation())
sketch11.addGeometry(Part.LineSegment(App.Vector(-56.810746, 18.553059, 0), App.Vector(-56.810746, 3.553059, 0)), False)
sketch11.addGeometry(Part.LineSegment(App.Vector(-56.810746, 3.553059, 0), App.Vector(93.189254, 3.553059, 0)), False)
sketch11.addGeometry(Part.LineSegment(App.Vector(93.189254, 3.553059, 0), App.Vector(93.189254, 18.553059, 0)), False)
sketch11.addGeometry(Part.LineSegment(App.Vector(93.189254, 18.553059, 0), App.Vector(-56.810746, 18.553059, 0)), False)
sketch11.addConstraint(Sketcher.Constraint("Coincident", 0, 2, 1, 1))
sketch11.addConstraint(Sketcher.Constraint("Coincident", 1, 2, 2, 1))
sketch11.addConstraint(Sketcher.Constraint("Coincident", 2, 2, 3, 1))
sketch11.addConstraint(Sketcher.Constraint("Coincident", 3, 2, 0, 1))
sketch11.addConstraint(Sketcher.Constraint("Vertical", 0))
sketch11.addConstraint(Sketcher.Constraint("Horizontal", 1))
sketch11.addConstraint(Sketcher.Constraint("Vertical", 2))
sketch11.addConstraint(Sketcher.Constraint("Horizontal", 3))
sketch11.addConstraint(Sketcher.Constraint("DistanceX", 1, 1, 1, 2, Q("150 mm")))
sketch11.addConstraint(Sketcher.Constraint("DistanceY", 0, 2, 0, 1, Q("15 mm")))
sketch11.addConstraint(Sketcher.Constraint("DistanceY", -1, 1, 0, 2, Q("3.553059 mm")))
sketch11.addConstraint(Sketcher.Constraint("DistanceX", 0, 2, -1, 1, Q("56.810746 mm")))
pocket1 = doc.addObject("PartDesign::Pocket", "Pocket")
body.addObject(pocket1)
pocket1.Profile = sketch11
pocket1.Length = 10

# Sketch on XY plane
sketch12 = doc.addObject("Sketcher::SketchObject", "Sketch011")
body.addObject(sketch12)
sketch12.AttachmentSupport = (doc.XY_Plane, [""])
sketch12.MapMode = "FlatFace"
sketch12.AttachmentOffset = App.Placement(App.Vector(0, 0, 5), App.Rotation())
sketch12.addGeometry(Part.Circle(App.Vector(63.689254, 3.553059, 0), App.Vector(0, 0, 1), 6), False)
sketch12.addGeometry(Part.Circle(App.Vector(-27.310746, 3.553059, 0), App.Vector(0, 0, 1), 6), False)
sketch12.addConstraint(Sketcher.Constraint("Equal", 0, 1))
sketch12.addConstraint(Sketcher.Constraint("Horizontal", 0, 3, 1, 3))
sketch12.addConstraint(Sketcher.Constraint("Diameter", 0, Q("12 mm")))
sketch12.addConstraint(Sketcher.Constraint("DistanceX", 1, 3, 0, 3, Q("91 mm")))
sketch12.addConstraint(Sketcher.Constraint("DistanceY", -1, 1, 0, 3, Q("3.553059 mm")))
sketch12.addConstraint(Sketcher.Constraint("DistanceX", -1, 1, 0, 3, Q("63.689254 mm")))
doc.recompute()
hole2 = doc.addObject("PartDesign::Hole", "Hole001")
body.addObject(hole2)
hole2.Profile = sketch12
hole2.ThreadType = "None"
hole2.Diameter = 12
hole2.DepthType = "Dimension"
hole2.Depth = 12.75
hole2.DrillPoint = "Angled"
hole2.DrillPointAngle = 118

doc.recompute()
